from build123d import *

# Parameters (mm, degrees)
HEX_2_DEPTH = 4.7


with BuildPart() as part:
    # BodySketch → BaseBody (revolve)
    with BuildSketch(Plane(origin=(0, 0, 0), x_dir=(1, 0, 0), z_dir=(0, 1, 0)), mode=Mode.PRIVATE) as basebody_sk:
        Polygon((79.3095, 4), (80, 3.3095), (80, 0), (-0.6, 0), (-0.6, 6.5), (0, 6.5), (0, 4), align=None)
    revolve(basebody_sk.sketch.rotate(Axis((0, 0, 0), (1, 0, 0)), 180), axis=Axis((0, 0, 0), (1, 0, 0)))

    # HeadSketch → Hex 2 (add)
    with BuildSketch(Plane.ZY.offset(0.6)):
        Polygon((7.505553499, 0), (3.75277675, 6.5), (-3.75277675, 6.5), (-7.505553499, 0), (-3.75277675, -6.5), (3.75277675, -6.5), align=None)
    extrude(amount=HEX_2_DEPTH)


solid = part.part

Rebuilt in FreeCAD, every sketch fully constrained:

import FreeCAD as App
import Part
import Sketcher

V = App.Vector
Q = App.Units.Quantity

doc = App.newDocument("Part")
body = doc.addObject("PartDesign::Body", "Body")

sketch1 = body.newObject("Sketcher::SketchObject", "Sketch")
sketch1.AttachmentSupport = (doc.getObject("XZ_Plane"), [""])
sketch1.MapMode = "FlatFace"
sketch1.addGeometry([
    Part.LineSegment(V(80, -3.3095, 0), V(79.3095, -4, 0)),
    Part.LineSegment(V(79.3095, -4, 0), V(0, -4, 0)),
    Part.LineSegment(V(0, -4, 0), V(0, -6.5, 0)),
    Part.LineSegment(V(0, -6.5, 0), V(-0.6, -6.5, 0)),
    Part.LineSegment(V(-0.6, -6.5, 0), V(-0.6, 0, 0)),
    Part.LineSegment(V(-0.6, 0, 0), V(80, 0, 0)),
    Part.LineSegment(V(80, 0, 0), V(80, -3.3095, 0)),
], False)
sketch1.addConstraint([
    Sketcher.Constraint("Coincident", 0, 2, 1, 1),
    Sketcher.Constraint("Coincident", 1, 2, 2, 1),
    Sketcher.Constraint("Coincident", 2, 2, 3, 1),
    Sketcher.Constraint("Coincident", 3, 2, 4, 1),
    Sketcher.Constraint("Coincident", 4, 2, 5, 1),
    Sketcher.Constraint("Coincident", 5, 2, 6, 1),
    Sketcher.Constraint("Coincident", 6, 2, 0, 1),
    Sketcher.Constraint("Horizontal", 1),
    Sketcher.Constraint("Vertical", 2),
    Sketcher.Constraint("Horizontal", 3),
    Sketcher.Constraint("Vertical", 4),
    Sketcher.Constraint("Horizontal", 5),
    Sketcher.Constraint("Vertical", 6),
    Sketcher.Constraint("PointOnObject", 1, 2, -2),
    Sketcher.Constraint("PointOnObject", 4, 2, -1),
    Sketcher.Constraint("Angle", 0, Q("-135 deg")),
    Sketcher.Constraint("DistanceX", 3, 2, 3, 1, 0.6),
    Sketcher.Constraint("DistanceX", 5, 1, 5, 2, 80.6),
    Sketcher.Constraint("DistanceY", 2, 2, 2, 1, 2.5),
    Sketcher.Constraint("DistanceY", 4, 1, 4, 2, 6.5),
    Sketcher.Constraint("DistanceX", 1, 2, 1, 1, 79.3095),
])
revolution = body.newObject("PartDesign::Revolution", "Revolution")
revolution.Profile = sketch1
revolution.ReferenceAxis = (sketch1, ["H_Axis"])
revolution.Angle = 360

sketch2 = body.newObject("Sketcher::SketchObject", "Sketch001")
sketch2.AttachmentSupport = (doc.getObject("YZ_Plane"), [""])
sketch2.MapMode = "FlatFace"
sketch2.AttachmentOffset = App.Placement(V(0, 0, -0.6), App.Rotation())
sketch2.addGeometry([
    Part.LineSegment(V(0, 7.505553, 0), V(6.5, 3.752777, 0)),
    Part.LineSegment(V(6.5, 3.752777, 0), V(6.5, -3.752777, 0)),
    Part.LineSegment(V(6.5, -3.752777, 0), V(0, -7.505553, 0)),
    Part.LineSegment(V(0, -7.505553, 0), V(-6.5, -3.752777, 0)),
    Part.LineSegment(V(-6.5, -3.752777, 0), V(-6.5, 3.752777, 0)),
    Part.LineSegment(V(-6.5, 3.752777, 0), V(0, 7.505553, 0)),
], False)
sketch2.addConstraint([
    Sketcher.Constraint("Coincident", 0, 2, 1, 1),
    Sketcher.Constraint("Coincident", 1, 2, 2, 1),
    Sketcher.Constraint("Coincident", 2, 2, 3, 1),
    Sketcher.Constraint("Coincident", 3, 2, 4, 1),
    Sketcher.Constraint("Coincident", 4, 2, 5, 1),
    Sketcher.Constraint("Coincident", 5, 2, 0, 1),
    Sketcher.Constraint("Vertical", 1),
    Sketcher.Constraint("Vertical", 4),
    Sketcher.Constraint("Symmetric", 0, 2, 3, 2, -1, 1),
    Sketcher.Constraint("Symmetric", 2, 2, 5, 2, -1, 1),
    Sketcher.Constraint("PointOnObject", 2, 2, -2),
    Sketcher.Constraint("Parallel", 2, 5),
    Sketcher.Constraint("Horizontal", 1, 2, 3, 2),
    Sketcher.Constraint("Angle", 0, Q("-30 deg")),
    Sketcher.Constraint("DistanceX", 3, 2, 1, 2, 13.0),
    Sketcher.Constraint("DistanceY", 1, 2, 1, 1, 7.505554),
])
pad1 = body.newObject("PartDesign::Pad", "Pad")
pad1.Profile = sketch2
pad1.Length = 4.7
pad1.Reversed = True

doc.recompute()
